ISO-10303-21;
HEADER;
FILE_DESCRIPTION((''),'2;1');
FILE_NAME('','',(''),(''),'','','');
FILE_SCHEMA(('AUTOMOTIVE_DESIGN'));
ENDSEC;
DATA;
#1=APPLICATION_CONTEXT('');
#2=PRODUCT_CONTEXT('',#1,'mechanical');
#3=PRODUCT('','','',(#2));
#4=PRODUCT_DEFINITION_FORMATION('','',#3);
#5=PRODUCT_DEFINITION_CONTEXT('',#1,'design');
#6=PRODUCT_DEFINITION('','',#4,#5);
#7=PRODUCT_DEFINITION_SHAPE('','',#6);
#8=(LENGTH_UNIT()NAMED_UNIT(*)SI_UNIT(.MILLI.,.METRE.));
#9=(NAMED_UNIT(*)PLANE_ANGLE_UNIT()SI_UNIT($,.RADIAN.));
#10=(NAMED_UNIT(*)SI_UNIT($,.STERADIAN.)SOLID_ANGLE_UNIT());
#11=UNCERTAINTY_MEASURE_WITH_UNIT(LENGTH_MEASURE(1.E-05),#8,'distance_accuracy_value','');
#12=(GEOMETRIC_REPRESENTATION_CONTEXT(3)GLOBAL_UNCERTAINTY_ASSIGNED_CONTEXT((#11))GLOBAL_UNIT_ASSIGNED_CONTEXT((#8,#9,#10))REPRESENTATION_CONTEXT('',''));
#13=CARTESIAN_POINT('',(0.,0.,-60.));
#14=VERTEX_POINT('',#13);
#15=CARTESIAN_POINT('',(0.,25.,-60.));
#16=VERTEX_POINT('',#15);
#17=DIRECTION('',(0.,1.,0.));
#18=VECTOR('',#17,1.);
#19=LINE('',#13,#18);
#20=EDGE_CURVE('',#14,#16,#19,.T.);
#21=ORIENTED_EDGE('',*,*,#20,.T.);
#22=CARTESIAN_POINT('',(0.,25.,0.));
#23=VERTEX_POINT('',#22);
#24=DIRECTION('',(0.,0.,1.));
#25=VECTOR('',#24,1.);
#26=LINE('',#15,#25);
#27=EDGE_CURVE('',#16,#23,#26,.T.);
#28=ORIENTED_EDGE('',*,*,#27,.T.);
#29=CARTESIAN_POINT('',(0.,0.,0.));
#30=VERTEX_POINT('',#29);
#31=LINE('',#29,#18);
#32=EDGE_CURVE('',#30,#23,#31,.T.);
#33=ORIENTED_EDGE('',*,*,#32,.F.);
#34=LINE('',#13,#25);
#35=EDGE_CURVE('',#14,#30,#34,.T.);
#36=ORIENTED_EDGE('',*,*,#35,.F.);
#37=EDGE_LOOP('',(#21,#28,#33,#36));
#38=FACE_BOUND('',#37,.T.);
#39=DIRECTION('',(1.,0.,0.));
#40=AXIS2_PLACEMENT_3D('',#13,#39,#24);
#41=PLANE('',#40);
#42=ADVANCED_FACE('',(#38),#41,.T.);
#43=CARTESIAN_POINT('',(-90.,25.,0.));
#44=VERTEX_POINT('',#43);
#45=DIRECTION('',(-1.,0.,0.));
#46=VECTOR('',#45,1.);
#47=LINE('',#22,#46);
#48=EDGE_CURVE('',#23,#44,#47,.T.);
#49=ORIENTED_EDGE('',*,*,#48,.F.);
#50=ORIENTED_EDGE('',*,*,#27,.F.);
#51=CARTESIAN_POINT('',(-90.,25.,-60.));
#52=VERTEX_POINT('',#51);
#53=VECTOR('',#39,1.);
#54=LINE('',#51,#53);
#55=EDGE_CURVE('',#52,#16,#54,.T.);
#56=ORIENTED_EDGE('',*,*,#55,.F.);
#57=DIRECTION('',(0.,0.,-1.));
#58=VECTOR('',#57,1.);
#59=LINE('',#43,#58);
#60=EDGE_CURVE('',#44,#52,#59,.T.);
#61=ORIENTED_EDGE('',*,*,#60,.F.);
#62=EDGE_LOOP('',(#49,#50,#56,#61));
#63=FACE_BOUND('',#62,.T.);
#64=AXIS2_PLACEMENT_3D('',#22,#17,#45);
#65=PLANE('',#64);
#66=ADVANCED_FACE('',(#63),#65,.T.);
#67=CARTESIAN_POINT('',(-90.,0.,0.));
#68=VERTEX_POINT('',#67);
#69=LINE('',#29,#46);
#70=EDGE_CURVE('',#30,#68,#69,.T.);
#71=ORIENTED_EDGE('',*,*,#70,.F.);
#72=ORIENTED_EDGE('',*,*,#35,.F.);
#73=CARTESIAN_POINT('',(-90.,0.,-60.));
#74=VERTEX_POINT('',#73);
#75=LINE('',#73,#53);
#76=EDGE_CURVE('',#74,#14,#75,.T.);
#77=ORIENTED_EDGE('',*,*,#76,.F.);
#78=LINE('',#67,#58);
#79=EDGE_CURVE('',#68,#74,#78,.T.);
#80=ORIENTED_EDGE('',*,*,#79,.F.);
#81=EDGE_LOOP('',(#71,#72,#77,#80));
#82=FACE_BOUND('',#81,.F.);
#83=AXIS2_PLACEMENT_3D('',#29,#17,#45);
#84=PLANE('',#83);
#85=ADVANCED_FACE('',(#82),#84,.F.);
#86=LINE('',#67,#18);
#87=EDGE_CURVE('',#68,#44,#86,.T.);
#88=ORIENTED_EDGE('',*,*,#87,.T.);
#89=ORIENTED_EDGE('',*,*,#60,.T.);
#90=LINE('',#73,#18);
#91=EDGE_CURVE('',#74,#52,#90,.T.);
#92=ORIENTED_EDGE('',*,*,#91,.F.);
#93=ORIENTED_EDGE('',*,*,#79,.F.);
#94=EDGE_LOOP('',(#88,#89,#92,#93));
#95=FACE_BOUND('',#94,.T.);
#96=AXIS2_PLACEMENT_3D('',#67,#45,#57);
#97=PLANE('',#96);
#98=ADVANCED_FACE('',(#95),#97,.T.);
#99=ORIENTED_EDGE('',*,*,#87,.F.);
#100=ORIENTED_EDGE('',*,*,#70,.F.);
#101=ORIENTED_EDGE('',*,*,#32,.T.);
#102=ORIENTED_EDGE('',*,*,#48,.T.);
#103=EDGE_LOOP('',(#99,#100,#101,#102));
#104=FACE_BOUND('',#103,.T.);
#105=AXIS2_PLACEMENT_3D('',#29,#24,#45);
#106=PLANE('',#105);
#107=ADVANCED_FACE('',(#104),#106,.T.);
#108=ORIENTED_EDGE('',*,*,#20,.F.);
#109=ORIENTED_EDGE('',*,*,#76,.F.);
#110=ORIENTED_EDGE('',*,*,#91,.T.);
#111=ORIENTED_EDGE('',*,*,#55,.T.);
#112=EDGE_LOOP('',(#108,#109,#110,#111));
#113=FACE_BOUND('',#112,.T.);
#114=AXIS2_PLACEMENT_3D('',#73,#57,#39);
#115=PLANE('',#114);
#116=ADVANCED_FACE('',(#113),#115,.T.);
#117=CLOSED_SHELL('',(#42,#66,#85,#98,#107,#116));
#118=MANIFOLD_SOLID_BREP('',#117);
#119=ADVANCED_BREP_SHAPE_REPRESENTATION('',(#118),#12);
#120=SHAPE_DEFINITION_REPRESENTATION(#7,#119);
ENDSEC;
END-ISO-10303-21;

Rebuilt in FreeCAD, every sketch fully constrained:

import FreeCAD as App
import Part
import Sketcher

V = App.Vector


def add_polygon(sketch, points):
    """Adds a closed chain of lines whose ends are joined by coincident constraints."""
    first, n = sketch.GeometryCount, len(points)
    for a, b in zip(points, points[1:] + points[:1]):
        sketch.addGeometry(Part.LineSegment(App.Vector(*a, 0), App.Vector(*b, 0)), False)
    for i in range(n):
        sketch.addConstraint(Sketcher.Constraint("Coincident", first + i, 2, first + (i + 1) % n, 1))

doc = App.newDocument("Part")
body = doc.addObject("PartDesign::Body", "Body")

sketch1 = doc.addObject("Sketcher::SketchObject", "Sketch")
body.addObject(sketch1)
sketch1.AttachmentSupport = (doc.XZ_Plane, [""])
sketch1.MapMode = "FlatFace"
add_polygon(sketch1, [(-90, 0), (0, 0), (0, -60), (-90, -60)])
sketch1.addConstraint(Sketcher.Constraint("Horizontal", 0))
sketch1.addConstraint(Sketcher.Constraint("Vertical", 1))
sketch1.addConstraint(Sketcher.Constraint("Horizontal", 2))
sketch1.addConstraint(Sketcher.Constraint("Vertical", 3))
sketch1.addConstraint(Sketcher.Constraint("Coincident", 0, 2, -1, 1))
sketch1.addConstraint(Sketcher.Constraint("DistanceX", 0, 1, 0, 2, 90.0))
sketch1.addConstraint(Sketcher.Constraint("DistanceY", 1, 2, 1, 1, 60.0))
pad1 = doc.addObject("PartDesign::Pad", "Pad")
body.addObject(pad1)
pad1.Profile = sketch1
pad1.Length = 25
pad1.Reversed = True

doc.recompute()
